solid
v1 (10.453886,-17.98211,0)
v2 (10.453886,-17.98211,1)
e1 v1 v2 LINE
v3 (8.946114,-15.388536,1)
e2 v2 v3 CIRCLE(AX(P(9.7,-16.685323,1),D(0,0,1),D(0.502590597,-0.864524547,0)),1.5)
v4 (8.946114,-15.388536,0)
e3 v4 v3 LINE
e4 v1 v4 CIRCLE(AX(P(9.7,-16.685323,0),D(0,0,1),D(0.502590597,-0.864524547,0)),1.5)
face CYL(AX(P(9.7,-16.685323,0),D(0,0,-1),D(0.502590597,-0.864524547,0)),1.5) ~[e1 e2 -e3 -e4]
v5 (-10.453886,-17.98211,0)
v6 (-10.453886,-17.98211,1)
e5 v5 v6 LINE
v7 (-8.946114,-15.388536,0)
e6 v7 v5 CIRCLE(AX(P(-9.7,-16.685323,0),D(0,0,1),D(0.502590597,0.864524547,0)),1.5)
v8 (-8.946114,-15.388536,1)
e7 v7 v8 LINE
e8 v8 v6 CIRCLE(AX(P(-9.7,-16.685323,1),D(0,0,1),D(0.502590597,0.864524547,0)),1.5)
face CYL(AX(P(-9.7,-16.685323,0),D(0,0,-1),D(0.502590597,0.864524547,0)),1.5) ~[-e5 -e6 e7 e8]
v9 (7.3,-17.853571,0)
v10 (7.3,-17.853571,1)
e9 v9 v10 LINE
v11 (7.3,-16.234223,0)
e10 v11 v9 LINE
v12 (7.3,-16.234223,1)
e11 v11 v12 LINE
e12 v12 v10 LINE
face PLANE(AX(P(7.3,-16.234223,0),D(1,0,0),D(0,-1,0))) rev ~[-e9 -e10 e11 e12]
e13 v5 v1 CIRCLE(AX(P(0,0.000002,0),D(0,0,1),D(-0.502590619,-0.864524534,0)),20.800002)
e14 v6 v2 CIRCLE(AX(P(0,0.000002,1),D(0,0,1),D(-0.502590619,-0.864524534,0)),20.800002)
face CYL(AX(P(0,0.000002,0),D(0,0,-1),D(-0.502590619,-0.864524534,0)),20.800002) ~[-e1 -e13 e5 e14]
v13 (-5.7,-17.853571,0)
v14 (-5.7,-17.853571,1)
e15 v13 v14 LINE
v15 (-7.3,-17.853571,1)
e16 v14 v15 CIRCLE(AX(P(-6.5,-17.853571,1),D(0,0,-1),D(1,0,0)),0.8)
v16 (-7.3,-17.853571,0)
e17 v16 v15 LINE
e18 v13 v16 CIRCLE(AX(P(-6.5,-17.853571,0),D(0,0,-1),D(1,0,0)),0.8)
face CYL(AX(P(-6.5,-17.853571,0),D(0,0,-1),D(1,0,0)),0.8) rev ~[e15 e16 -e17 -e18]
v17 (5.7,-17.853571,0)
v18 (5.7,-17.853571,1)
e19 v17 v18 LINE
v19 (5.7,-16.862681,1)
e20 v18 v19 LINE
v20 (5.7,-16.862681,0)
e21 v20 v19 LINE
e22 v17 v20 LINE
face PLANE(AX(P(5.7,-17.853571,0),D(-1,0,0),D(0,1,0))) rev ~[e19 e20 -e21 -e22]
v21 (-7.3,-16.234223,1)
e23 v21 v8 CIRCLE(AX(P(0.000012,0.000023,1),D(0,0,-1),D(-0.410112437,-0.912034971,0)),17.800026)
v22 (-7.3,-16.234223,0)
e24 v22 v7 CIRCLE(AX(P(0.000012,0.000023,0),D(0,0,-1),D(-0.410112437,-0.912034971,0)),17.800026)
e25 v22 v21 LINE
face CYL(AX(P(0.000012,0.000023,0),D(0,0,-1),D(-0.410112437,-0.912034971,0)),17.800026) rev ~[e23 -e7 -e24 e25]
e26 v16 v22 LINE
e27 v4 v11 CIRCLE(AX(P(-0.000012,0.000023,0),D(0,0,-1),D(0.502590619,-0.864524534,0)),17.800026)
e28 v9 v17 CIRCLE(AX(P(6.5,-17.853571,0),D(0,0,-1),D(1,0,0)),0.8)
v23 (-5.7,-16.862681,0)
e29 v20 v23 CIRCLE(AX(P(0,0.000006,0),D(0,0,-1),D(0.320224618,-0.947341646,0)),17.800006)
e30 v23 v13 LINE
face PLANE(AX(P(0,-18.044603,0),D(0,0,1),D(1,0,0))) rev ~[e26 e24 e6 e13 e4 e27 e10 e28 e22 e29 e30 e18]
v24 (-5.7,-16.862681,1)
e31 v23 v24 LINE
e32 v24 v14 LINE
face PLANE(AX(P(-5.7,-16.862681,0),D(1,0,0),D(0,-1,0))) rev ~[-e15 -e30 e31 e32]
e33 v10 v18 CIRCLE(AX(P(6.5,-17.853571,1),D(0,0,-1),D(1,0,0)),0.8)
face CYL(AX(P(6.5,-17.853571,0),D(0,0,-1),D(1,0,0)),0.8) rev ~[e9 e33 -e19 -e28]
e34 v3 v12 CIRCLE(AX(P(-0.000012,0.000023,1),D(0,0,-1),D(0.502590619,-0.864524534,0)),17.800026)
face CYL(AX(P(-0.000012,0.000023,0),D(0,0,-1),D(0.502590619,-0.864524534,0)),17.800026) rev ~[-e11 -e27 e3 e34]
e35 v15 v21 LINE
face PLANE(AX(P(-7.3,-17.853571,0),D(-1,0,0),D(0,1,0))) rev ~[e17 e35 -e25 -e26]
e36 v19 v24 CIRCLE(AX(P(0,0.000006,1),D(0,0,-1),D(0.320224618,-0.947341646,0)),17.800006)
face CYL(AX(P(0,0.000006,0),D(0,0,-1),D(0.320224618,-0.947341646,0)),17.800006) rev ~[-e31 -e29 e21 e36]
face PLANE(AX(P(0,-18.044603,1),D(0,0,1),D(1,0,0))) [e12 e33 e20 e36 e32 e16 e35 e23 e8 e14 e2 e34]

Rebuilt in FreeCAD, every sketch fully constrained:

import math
import FreeCAD as App
import Part
import Sketcher
from FreeCAD import Vector

doc = App.newDocument("Part")
body = doc.addObject("PartDesign::Body", "Body")

# Sketch on XY plane
sketch1 = body.newObject("Sketcher::SketchObject", "Sketch")
sketch1.AttachmentSupport = (doc.getObject("XY_Plane"), [""])
sketch1.MapMode = "FlatFace"
sketch1.addGeometry([
    Part.ArcOfCircle(Part.Circle(Vector(0, 0, 0), Vector(0, 0, 1), 17.8), math.radians(-120.17), math.radians(-114.21)),  # 0
    Part.ArcOfCircle(Part.Circle(Vector(-9.7, -16.7, 0), Vector(0, 0, 1), 1.5), math.radians(60), math.radians(240)),  # 1
    Part.ArcOfCircle(Part.Circle(Vector(0, 0, 0), Vector(0, 0, 1), 20.8), math.radians(-120), math.radians(-60)),  # 2
    Part.ArcOfCircle(Part.Circle(Vector(9.7, -16.7, 0), Vector(0, 0, 1), 1.5), math.radians(-60), math.radians(120)),  # 3
    Part.ArcOfCircle(Part.Circle(Vector(0, 0, 0), Vector(0, 0, 1), 17.8), math.radians(-65.79), math.radians(-59.83)),  # 4
    Part.LineSegment(Vector(7.3, -16.2, 0), Vector(7.3, -17.9, 0)),  # 5
    Part.ArcOfCircle(Part.Circle(Vector(6.5, -17.9, 0), Vector(0, 0, 1), 0.8), math.radians(180), math.radians(360)),  # 6
    Part.LineSegment(Vector(5.7, -17.9, 0), Vector(5.7, -16.9, 0)),  # 7
    Part.ArcOfCircle(Part.Circle(Vector(0, 0, 0), Vector(0, 0, 1), 17.8), math.radians(-109), math.radians(-71)),  # 8
    Part.LineSegment(Vector(-5.7, -16.9, 0), Vector(-5.7, -17.9, 0)),  # 9
    Part.ArcOfCircle(Part.Circle(Vector(-6.5, -17.9, 0), Vector(0, 0, 1), 0.8), math.radians(180), math.radians(360)),  # 10
    Part.LineSegment(Vector(-7.3, -17.9, 0), Vector(-7.3, -16.2, 0)),  # 11
], False)
sketch1.addConstraint([
    Sketcher.Constraint("Tangent", 0, 1, 1, 1),
    Sketcher.Constraint("Tangent", 1, 2, 2, 1),
    Sketcher.Constraint("Tangent", 2, 2, 3, 1),
    Sketcher.Constraint("Tangent", 3, 2, 4, 2),
    Sketcher.Constraint("Coincident", 4, 1, 5, 1),
    Sketcher.Constraint("Tangent", 5, 2, 6, 2),
    Sketcher.Constraint("Tangent", 6, 1, 7, 1),
    Sketcher.Constraint("Coincident", 7, 2, 8, 2),
    Sketcher.Constraint("Coincident", 8, 1, 9, 1),
    Sketcher.Constraint("Tangent", 9, 2, 10, 2),
    Sketcher.Constraint("Tangent", 10, 1, 11, 1),
    Sketcher.Constraint("Coincident", 11, 2, 0, 2),
    Sketcher.Constraint("Vertical", 5),
    Sketcher.Constraint("Vertical", 7),
    Sketcher.Constraint("Vertical", 9),
    Sketcher.Constraint("Vertical", 11),
    Sketcher.Constraint("Coincident", 2, 3, -1, 1),
    Sketcher.Constraint("Coincident", 8, 3, -1, 1),
    Sketcher.Constraint("Equal", 1, 3),
    Sketcher.Constraint("Equal", 0, 4),
    Sketcher.Constraint("Equal", 6, 10),
    Sketcher.Constraint("Symmetric", 6, 3, 10, 3, -2),
    Sketcher.Constraint("Horizontal", 1, 3, 3, 3),
    Sketcher.Constraint("Horizontal", 0, 3, 4, 3),
    Sketcher.Constraint("Radius", 1, 1.5),
    Sketcher.Constraint("Radius", 6, 0.8),
    Sketcher.Constraint("DistanceX", 10, 3, 6, 3, 13.0),
    Sketcher.Constraint("DistanceX", 6, 1, 3, 3, 4.0),
    Sketcher.Constraint("Radius", 0, 17.800026),
    Sketcher.Constraint("Radius", 2, 20.800002),
    Sketcher.Constraint("Radius", 8, 17.800006),
    Sketcher.Constraint("DistanceY", 7, 1, 7, 2, 0.99089),
    Sketcher.Constraint("DistanceY", 3, 3, 4, 1, 0.4511),
])
pad1 = body.newObject("PartDesign::Pad", "Pad")
pad1.Profile = sketch1
pad1.Length = 1

doc.recompute()
